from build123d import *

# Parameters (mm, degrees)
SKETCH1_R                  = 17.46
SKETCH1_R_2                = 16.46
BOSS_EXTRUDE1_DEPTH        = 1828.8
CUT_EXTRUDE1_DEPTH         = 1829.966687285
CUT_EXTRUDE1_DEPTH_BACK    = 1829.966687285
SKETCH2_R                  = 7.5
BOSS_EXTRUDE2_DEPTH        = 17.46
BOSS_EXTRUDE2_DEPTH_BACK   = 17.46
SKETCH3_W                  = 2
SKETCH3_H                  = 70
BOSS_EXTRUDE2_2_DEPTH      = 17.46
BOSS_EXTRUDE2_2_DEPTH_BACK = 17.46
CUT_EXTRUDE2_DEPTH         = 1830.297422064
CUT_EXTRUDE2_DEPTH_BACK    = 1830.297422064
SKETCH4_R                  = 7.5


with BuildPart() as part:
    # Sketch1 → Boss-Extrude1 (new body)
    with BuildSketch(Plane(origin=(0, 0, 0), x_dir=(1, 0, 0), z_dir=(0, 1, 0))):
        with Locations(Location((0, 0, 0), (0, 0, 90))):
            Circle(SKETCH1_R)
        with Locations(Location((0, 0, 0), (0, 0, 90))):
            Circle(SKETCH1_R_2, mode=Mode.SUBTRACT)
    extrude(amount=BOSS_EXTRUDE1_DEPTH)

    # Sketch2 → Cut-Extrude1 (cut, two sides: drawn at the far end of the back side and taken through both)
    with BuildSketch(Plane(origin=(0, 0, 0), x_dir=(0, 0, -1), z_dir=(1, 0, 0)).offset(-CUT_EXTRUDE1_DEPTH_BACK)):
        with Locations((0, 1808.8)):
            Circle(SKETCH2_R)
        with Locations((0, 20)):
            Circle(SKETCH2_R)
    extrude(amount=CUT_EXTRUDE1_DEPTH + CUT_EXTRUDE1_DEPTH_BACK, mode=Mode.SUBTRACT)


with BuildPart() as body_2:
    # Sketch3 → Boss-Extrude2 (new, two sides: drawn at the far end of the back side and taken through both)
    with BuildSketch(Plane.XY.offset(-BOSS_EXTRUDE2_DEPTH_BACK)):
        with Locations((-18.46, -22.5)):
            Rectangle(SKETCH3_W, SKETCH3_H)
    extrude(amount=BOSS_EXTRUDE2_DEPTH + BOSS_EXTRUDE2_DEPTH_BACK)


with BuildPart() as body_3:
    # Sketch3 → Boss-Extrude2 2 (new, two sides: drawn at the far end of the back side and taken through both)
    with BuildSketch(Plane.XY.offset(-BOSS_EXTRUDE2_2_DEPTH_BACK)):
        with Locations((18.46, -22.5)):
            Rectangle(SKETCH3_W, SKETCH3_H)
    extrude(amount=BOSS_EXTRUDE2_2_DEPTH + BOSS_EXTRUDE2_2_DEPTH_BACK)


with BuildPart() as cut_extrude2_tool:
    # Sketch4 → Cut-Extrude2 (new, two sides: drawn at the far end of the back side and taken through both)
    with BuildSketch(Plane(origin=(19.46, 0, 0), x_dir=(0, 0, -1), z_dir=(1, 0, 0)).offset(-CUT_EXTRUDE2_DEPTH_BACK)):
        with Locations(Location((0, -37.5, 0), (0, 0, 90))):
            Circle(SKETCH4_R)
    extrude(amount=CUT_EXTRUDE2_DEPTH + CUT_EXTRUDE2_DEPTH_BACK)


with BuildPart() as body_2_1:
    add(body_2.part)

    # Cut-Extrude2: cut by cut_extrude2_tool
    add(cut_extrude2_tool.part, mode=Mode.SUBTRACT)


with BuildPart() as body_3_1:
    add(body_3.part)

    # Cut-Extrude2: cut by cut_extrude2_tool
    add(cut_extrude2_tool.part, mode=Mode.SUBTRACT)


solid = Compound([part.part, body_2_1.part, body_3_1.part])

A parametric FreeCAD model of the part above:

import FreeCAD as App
import Part
import Sketcher

V = App.Vector
Q = App.Units.Quantity

doc = App.newDocument("Part")
body = doc.addObject("PartDesign::Body", "Body")

sketch1 = doc.addObject("Sketcher::SketchObject", "Sketch")
body.addObject(sketch1)
sketch1.AttachmentSupport = (doc.XZ_Plane, [""])
sketch1.MapMode = "FlatFace"
sketch1.addGeometry(Part.Circle(V(0, 0, 0), V(0, 0, 1), 17), False)
sketch1.addGeometry(Part.Circle(V(0, 0, 0), V(0, 0, 1), 16), False)
sketch1.addConstraint(Sketcher.Constraint("Coincident", 0, 3, -1, 1))
sketch1.addConstraint(Sketcher.Constraint("Coincident", 1, 3, -1, 1))
sketch1.addConstraint(Sketcher.Constraint("Diameter", 0, Q("34.92 mm")))
sketch1.addConstraint(Sketcher.Constraint("Diameter", 1, Q("32.92 mm")))
pad1 = doc.addObject("PartDesign::Pad", "Pad")
body.addObject(pad1)
pad1.Profile = sketch1
pad1.Length = 1828.8
pad1.Reversed = True

sketch2 = doc.addObject("Sketcher::SketchObject", "Sketch001")
body.addObject(sketch2)
sketch2.AttachmentSupport = (doc.YZ_Plane, [""])
sketch2.MapMode = "FlatFace"
sketch2.addGeometry(Part.Circle(V(1809, 0, 0), V(0, 0, 1), 8), False)
sketch2.addGeometry(Part.Circle(V(20, 0, 0), V(0, 0, 1), 8), False)
sketch2.addConstraint(Sketcher.Constraint("Equal", 0, 1))
sketch2.addConstraint(Sketcher.Constraint("PointOnObject", 0, 3, -1))
sketch2.addConstraint(Sketcher.Constraint("PointOnObject", 1, 3, -1))
sketch2.addConstraint(Sketcher.Constraint("Diameter", 0, Q("15 mm")))
sketch2.addConstraint(Sketcher.Constraint("DistanceX", -1, 1, 1, 3, Q("20 mm")))
sketch2.addConstraint(Sketcher.Constraint("DistanceX", -1, 1, 0, 3, Q("1808.8 mm")))
pocket1 = doc.addObject("PartDesign::Pocket", "Pocket")
body.addObject(pocket1)
pocket1.Profile = sketch2
pocket1.Type = "ThroughAll"
pocket1.Midplane = True
body2 = doc.addObject("PartDesign::Body", "Body001")

sketch3 = doc.addObject("Sketcher::SketchObject", "Sketch002")
body2.addObject(sketch3)
sketch3.AttachmentSupport = (doc.getObject("XY_Plane001"), [""])
sketch3.MapMode = "FlatFace"
sketch3.addGeometry(Part.LineSegment(V(-19.5, 12.5, 0), V(-19.5, -57.5, 0)), False)
sketch3.addGeometry(Part.LineSegment(V(-19.5, -57.5, 0), V(-17.5, -57.5, 0)), False)
sketch3.addGeometry(Part.LineSegment(V(-17.5, -57.5, 0), V(-17.5, 12.5, 0)), False)
sketch3.addGeometry(Part.LineSegment(V(-17.5, 12.5, 0), V(-19.5, 12.5, 0)), False)
sketch3.addConstraint(Sketcher.Constraint("Coincident", 0, 2, 1, 1))
sketch3.addConstraint(Sketcher.Constraint("Coincident", 1, 2, 2, 1))
sketch3.addConstraint(Sketcher.Constraint("Coincident", 2, 2, 3, 1))
sketch3.addConstraint(Sketcher.Constraint("Coincident", 3, 2, 0, 1))
sketch3.addConstraint(Sketcher.Constraint("Vertical", 0))
sketch3.addConstraint(Sketcher.Constraint("Horizontal", 1))
sketch3.addConstraint(Sketcher.Constraint("Vertical", 2))
sketch3.addConstraint(Sketcher.Constraint("Horizontal", 3))
sketch3.addConstraint(Sketcher.Constraint("DistanceX", 1, 1, 1, 2, Q("2 mm")))
sketch3.addConstraint(Sketcher.Constraint("DistanceY", 0, 2, 0, 1, Q("70 mm")))
sketch3.addConstraint(Sketcher.Constraint("DistanceY", 0, 2, -1, 1, Q("57.5 mm")))
sketch3.addConstraint(Sketcher.Constraint("DistanceX", 0, 2, -1, 1, Q("19.46 mm")))
pad2 = doc.addObject("PartDesign::Pad", "Pad001")
body2.addObject(pad2)
pad2.Profile = sketch3
pad2.Type = "TwoLengths"
pad2.Length = 17.46
pad2.Length2 = 17.46
body3 = doc.addObject("PartDesign::Body", "Body002")

sketch4 = doc.addObject("Sketcher::SketchObject", "Sketch003")
body3.addObject(sketch4)
sketch4.AttachmentSupport = (doc.getObject("XY_Plane002"), [""])
sketch4.MapMode = "FlatFace"
sketch4.addGeometry(Part.LineSegment(V(17.5, 12.5, 0), V(17.5, -57.5, 0)), False)
sketch4.addGeometry(Part.LineSegment(V(17.5, -57.5, 0), V(19.5, -57.5, 0)), False)
sketch4.addGeometry(Part.LineSegment(V(19.5, -57.5, 0), V(19.5, 12.5, 0)), False)
sketch4.addGeometry(Part.LineSegment(V(19.5, 12.5, 0), V(17.5, 12.5, 0)), False)
sketch4.addConstraint(Sketcher.Constraint("Coincident", 0, 2, 1, 1))
sketch4.addConstraint(Sketcher.Constraint("Coincident", 1, 2, 2, 1))
sketch4.addConstraint(Sketcher.Constraint("Coincident", 2, 2, 3, 1))
sketch4.addConstraint(Sketcher.Constraint("Coincident", 3, 2, 0, 1))
sketch4.addConstraint(Sketcher.Constraint("Vertical", 0))
sketch4.addConstraint(Sketcher.Constraint("Horizontal", 1))
sketch4.addConstraint(Sketcher.Constraint("Vertical", 2))
sketch4.addConstraint(Sketcher.Constraint("Horizontal", 3))
sketch4.addConstraint(Sketcher.Constraint("DistanceX", 1, 1, 1, 2, Q("2 mm")))
sketch4.addConstraint(Sketcher.Constraint("DistanceY", 0, 2, 0, 1, Q("70 mm")))
sketch4.addConstraint(Sketcher.Constraint("DistanceY", 0, 2, -1, 1, Q("57.5 mm")))
sketch4.addConstraint(Sketcher.Constraint("DistanceX", -1, 1, 0, 2, Q("17.46 mm")))
pad3 = doc.addObject("PartDesign::Pad", "Pad002")
body3.addObject(pad3)
pad3.Profile = sketch4
pad3.Type = "TwoLengths"
pad3.Length = 17.46
pad3.Length2 = 17.46
body4 = doc.addObject("PartDesign::Body", "Body003")

sketch5 = doc.addObject("Sketcher::SketchObject", "Sketch004")
body4.addObject(sketch5)
sketch5.AttachmentSupport = (doc.getObject("YZ_Plane003"), [""])
sketch5.MapMode = "FlatFace"
sketch5.AttachmentOffset = App.Placement(V(0, 0, 19.46), App.Rotation())
sketch5.addGeometry(Part.Circle(V(-38, 0, 0), V(0, 0, 1), 8), False)
sketch5.addConstraint(Sketcher.Constraint("PointOnObject", 0, 3, -1))
sketch5.addConstraint(Sketcher.Constraint("Diameter", 0, Q("15 mm")))
sketch5.addConstraint(Sketcher.Constraint("DistanceX", 0, 3, -1, 1, Q("37.5 mm")))
pad4 = doc.addObject("PartDesign::Pad", "Pad003")
body4.addObject(pad4)
pad4.Profile = sketch5
pad4.Type = "TwoLengths"
pad4.Length = 1830.297422
pad4.Length2 = 1830.297422
doc.recompute()

body5 = doc.addObject("PartDesign::Body", "Body004")
body5.BaseFeature = body4
boolean = doc.addObject("PartDesign::Boolean", "Boolean")
body2.addObject(boolean)
boolean.Type = "Cut"
boolean.addObjects([body5])
doc.recompute()

boolean2 = doc.addObject("PartDesign::Boolean", "Boolean001")
body3.addObject(boolean2)
boolean2.Type = "Cut"
boolean2.addObjects([body4])

doc.recompute()
